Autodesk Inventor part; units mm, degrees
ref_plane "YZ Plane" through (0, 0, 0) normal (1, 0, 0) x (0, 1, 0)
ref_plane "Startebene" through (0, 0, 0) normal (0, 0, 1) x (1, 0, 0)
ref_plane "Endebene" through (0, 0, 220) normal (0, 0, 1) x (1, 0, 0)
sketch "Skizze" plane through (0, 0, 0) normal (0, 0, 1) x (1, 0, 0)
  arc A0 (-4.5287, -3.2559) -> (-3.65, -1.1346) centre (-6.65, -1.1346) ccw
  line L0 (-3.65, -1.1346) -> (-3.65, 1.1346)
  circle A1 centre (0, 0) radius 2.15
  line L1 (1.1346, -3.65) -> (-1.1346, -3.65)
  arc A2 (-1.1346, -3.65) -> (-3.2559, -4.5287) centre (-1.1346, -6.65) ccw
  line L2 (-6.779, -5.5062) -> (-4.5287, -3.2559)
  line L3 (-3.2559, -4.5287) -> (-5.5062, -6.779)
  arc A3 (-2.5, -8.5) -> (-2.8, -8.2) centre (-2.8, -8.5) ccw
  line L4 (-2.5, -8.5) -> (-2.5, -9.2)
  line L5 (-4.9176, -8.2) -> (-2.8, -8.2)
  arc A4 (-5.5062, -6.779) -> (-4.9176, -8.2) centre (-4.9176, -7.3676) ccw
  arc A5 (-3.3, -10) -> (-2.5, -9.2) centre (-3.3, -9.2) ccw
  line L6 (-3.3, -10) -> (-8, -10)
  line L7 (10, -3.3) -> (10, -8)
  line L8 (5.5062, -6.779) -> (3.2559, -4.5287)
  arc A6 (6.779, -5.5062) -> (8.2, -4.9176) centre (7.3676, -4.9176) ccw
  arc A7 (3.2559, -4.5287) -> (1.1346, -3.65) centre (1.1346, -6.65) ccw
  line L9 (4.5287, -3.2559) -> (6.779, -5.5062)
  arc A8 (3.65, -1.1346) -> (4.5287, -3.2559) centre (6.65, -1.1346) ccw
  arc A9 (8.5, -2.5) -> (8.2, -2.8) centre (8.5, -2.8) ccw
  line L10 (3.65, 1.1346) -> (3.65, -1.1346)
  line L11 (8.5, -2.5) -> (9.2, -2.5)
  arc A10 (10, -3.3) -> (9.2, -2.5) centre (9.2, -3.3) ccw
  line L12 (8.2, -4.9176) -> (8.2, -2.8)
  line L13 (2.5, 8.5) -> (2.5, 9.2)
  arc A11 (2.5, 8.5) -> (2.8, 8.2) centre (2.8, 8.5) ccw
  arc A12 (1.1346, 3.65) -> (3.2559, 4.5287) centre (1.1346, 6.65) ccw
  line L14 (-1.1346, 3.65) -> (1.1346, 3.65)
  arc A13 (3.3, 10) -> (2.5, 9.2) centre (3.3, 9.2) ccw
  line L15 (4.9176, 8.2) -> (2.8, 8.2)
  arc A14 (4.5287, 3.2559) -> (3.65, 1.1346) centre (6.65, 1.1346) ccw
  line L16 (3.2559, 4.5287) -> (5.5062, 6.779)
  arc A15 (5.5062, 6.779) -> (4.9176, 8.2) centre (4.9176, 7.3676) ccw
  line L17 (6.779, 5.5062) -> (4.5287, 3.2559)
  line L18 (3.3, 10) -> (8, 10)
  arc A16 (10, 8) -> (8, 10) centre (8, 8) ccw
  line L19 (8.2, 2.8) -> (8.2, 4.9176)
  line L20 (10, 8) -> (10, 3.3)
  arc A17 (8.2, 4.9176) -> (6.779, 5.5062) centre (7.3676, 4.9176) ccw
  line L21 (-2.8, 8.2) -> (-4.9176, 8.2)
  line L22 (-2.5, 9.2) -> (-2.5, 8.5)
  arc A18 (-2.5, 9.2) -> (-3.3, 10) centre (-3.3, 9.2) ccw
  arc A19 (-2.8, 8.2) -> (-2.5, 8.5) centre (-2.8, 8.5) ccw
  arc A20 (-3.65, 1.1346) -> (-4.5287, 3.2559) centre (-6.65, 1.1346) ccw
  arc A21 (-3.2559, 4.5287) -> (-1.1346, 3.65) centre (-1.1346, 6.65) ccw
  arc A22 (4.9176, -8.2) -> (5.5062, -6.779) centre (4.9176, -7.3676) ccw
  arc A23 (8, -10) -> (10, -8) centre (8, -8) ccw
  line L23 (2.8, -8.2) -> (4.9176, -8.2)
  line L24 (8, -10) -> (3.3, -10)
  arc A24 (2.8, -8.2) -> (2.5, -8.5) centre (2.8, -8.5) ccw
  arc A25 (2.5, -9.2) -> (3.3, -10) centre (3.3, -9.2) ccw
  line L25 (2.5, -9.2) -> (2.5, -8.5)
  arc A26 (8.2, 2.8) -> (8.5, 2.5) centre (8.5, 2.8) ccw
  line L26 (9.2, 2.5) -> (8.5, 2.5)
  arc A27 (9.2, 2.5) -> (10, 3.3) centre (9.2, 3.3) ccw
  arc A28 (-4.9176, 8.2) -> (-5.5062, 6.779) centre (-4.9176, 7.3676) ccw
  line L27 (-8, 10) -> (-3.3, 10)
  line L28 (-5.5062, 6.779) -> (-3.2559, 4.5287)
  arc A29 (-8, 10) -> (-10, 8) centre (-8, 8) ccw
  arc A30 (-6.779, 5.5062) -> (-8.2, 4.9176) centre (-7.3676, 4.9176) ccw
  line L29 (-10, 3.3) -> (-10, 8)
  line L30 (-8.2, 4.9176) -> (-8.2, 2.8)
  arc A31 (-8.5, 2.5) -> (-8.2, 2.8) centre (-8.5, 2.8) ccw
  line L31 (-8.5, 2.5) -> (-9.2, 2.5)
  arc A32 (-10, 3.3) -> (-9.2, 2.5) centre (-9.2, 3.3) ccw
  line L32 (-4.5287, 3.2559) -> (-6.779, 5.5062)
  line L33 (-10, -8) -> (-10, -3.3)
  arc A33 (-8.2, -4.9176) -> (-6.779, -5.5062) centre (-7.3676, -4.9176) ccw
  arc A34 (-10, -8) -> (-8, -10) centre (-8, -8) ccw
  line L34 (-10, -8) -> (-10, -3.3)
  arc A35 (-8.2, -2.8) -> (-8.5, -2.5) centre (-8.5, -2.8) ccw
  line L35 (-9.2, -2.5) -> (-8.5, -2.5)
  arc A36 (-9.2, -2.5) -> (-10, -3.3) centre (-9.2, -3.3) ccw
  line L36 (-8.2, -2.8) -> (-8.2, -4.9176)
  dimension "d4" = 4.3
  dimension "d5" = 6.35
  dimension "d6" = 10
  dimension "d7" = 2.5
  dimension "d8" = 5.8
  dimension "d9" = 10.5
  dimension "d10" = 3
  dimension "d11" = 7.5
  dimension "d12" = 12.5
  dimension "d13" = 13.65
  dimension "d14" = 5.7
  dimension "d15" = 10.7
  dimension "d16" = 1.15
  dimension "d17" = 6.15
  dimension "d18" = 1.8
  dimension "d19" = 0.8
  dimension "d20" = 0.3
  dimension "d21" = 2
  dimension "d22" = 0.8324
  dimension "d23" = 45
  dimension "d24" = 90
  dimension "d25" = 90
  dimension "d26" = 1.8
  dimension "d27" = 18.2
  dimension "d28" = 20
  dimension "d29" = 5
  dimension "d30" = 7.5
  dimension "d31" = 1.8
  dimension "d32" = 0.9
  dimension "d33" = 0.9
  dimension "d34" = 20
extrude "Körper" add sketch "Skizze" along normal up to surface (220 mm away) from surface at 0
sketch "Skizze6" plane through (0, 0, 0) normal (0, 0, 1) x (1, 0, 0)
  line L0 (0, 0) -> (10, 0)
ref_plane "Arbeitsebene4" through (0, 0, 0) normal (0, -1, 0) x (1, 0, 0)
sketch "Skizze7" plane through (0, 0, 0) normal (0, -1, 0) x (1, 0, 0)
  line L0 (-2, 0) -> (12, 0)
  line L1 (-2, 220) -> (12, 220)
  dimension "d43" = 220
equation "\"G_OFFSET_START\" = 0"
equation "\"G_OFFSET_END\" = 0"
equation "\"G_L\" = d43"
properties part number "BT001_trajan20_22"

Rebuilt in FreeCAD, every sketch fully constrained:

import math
import FreeCAD as App
import Part
import Sketcher

V = App.Vector
Q = App.Units.Quantity

doc = App.newDocument("Part")
body = doc.addObject("PartDesign::Body", "Body")

# Sketch on XY plane
sketch1 = body.newObject("Sketcher::SketchObject", "Sketch")
sketch1.AttachmentSupport = (doc.getObject("XY_Plane"), [""])
sketch1.MapMode = "FlatFace"
sketch1.addGeometry([
    Part.ArcOfCircle(Part.Circle(V(-6.65, -1.13, 0), V(0, 0, 1), 3), math.radians(-45), math.radians(0)),  # 0
    Part.LineSegment(V(-4.53, -3.26, 0), V(-6.78, -5.51, 0)),  # 1
    Part.ArcOfCircle(Part.Circle(V(-7.37, -4.92, 0), V(0, 0, 1), 0.83), math.radians(180), math.radians(315)),  # 2
    Part.LineSegment(V(-8.2, -4.92, 0), V(-8.2, -2.8, 0)),  # 3
    Part.ArcOfCircle(Part.Circle(V(-8.5, -2.8, 0), V(0, 0, 1), 0.3), math.radians(0), math.radians(90)),  # 4
    Part.LineSegment(V(-8.5, -2.5, 0), V(-9.2, -2.5, 0)),  # 5
    Part.ArcOfCircle(Part.Circle(V(-9.2, -3.3, 0), V(0, 0, 1), 0.8), math.radians(90), math.radians(180)),  # 6
    Part.LineSegment(V(-10, -3.3, 0), V(-10, -8, 0)),  # 7
    Part.ArcOfCircle(Part.Circle(V(-8, -8, 0), V(0, 0, 1), 2), math.radians(180), math.radians(270)),  # 8
    Part.LineSegment(V(-8, -10, 0), V(-3.3, -10, 0)),  # 9
    Part.ArcOfCircle(Part.Circle(V(-3.3, -9.2, 0), V(0, 0, 1), 0.8), math.radians(-90), math.radians(0)),  # 10
    Part.LineSegment(V(-2.5, -9.2, 0), V(-2.5, -8.5, 0)),  # 11
    Part.ArcOfCircle(Part.Circle(V(-2.8, -8.5, 0), V(0, 0, 1), 0.3), math.radians(0), math.radians(90)),  # 12
    Part.LineSegment(V(-2.8, -8.2, 0), V(-4.92, -8.2, 0)),  # 13
    Part.ArcOfCircle(Part.Circle(V(-4.92, -7.37, 0), V(0, 0, 1), 0.83), math.radians(135), math.radians(270)),  # 14
    Part.LineSegment(V(-5.51, -6.78, 0), V(-3.26, -4.53, 0)),  # 15
    Part.ArcOfCircle(Part.Circle(V(-1.13, -6.65, 0), V(0, 0, 1), 3), math.radians(90), math.radians(135)),  # 16
    Part.LineSegment(V(-1.13, -3.65, 0), V(1.13, -3.65, 0)),  # 17
    Part.ArcOfCircle(Part.Circle(V(1.13, -6.65, 0), V(0, 0, 1), 3), math.radians(45), math.radians(90)),  # 18
    Part.LineSegment(V(3.26, -4.53, 0), V(5.51, -6.78, 0)),  # 19
    Part.ArcOfCircle(Part.Circle(V(4.92, -7.37, 0), V(0, 0, 1), 0.83), math.radians(-90), math.radians(45)),  # 20
    Part.LineSegment(V(4.92, -8.2, 0), V(2.8, -8.2, 0)),  # 21
    Part.ArcOfCircle(Part.Circle(V(2.8, -8.5, 0), V(0, 0, 1), 0.3), math.radians(90), math.radians(180)),  # 22
    Part.LineSegment(V(2.5, -8.5, 0), V(2.5, -9.2, 0)),  # 23
    Part.ArcOfCircle(Part.Circle(V(3.3, -9.2, 0), V(0, 0, 1), 0.8), math.radians(180), math.radians(270)),  # 24
    Part.LineSegment(V(3.3, -10, 0), V(8, -10, 0)),  # 25
    Part.ArcOfCircle(Part.Circle(V(8, -8, 0), V(0, 0, 1), 2), math.radians(-90), math.radians(0)),  # 26
    Part.LineSegment(V(10, -8, 0), V(10, -3.3, 0)),  # 27
    Part.ArcOfCircle(Part.Circle(V(9.2, -3.3, 0), V(0, 0, 1), 0.8), math.radians(0), math.radians(90)),  # 28
    Part.LineSegment(V(9.2, -2.5, 0), V(8.5, -2.5, 0)),  # 29
    Part.ArcOfCircle(Part.Circle(V(8.5, -2.8, 0), V(0, 0, 1), 0.3), math.radians(90), math.radians(180)),  # 30
    Part.LineSegment(V(8.2, -2.8, 0), V(8.2, -4.92, 0)),  # 31
    Part.ArcOfCircle(Part.Circle(V(7.37, -4.92, 0), V(0, 0, 1), 0.83), math.radians(-135), math.radians(0)),  # 32
    Part.LineSegment(V(6.78, -5.51, 0), V(4.53, -3.26, 0)),  # 33
    Part.ArcOfCircle(Part.Circle(V(6.65, -1.13, 0), V(0, 0, 1), 3), math.radians(180), math.radians(225)),  # 34
    Part.LineSegment(V(3.65, -1.13, 0), V(3.65, 1.13, 0)),  # 35
    Part.ArcOfCircle(Part.Circle(V(6.65, 1.13, 0), V(0, 0, 1), 3), math.radians(135), math.radians(180)),  # 36
    Part.LineSegment(V(4.53, 3.26, 0), V(6.78, 5.51, 0)),  # 37
    Part.ArcOfCircle(Part.Circle(V(7.37, 4.92, 0), V(0, 0, 1), 0.83), math.radians(0), math.radians(135)),  # 38
    Part.LineSegment(V(8.2, 4.92, 0), V(8.2, 2.8, 0)),  # 39
    Part.ArcOfCircle(Part.Circle(V(8.5, 2.8, 0), V(0, 0, 1), 0.3), math.radians(180), math.radians(270)),  # 40
    Part.LineSegment(V(8.5, 2.5, 0), V(9.2, 2.5, 0)),  # 41
    Part.ArcOfCircle(Part.Circle(V(9.2, 3.3, 0), V(0, 0, 1), 0.8), math.radians(-90), math.radians(0)),  # 42
    Part.LineSegment(V(10, 3.3, 0), V(10, 8, 0)),  # 43
    Part.ArcOfCircle(Part.Circle(V(8, 8, 0), V(0, 0, 1), 2), math.radians(0), math.radians(90)),  # 44
    Part.LineSegment(V(8, 10, 0), V(3.3, 10, 0)),  # 45
    Part.ArcOfCircle(Part.Circle(V(3.3, 9.2, 0), V(0, 0, 1), 0.8), math.radians(90), math.radians(180)),  # 46
    Part.LineSegment(V(2.5, 9.2, 0), V(2.5, 8.5, 0)),  # 47
    Part.ArcOfCircle(Part.Circle(V(2.8, 8.5, 0), V(0, 0, 1), 0.3), math.radians(180), math.radians(270)),  # 48
    Part.LineSegment(V(2.8, 8.2, 0), V(4.92, 8.2, 0)),  # 49
    Part.ArcOfCircle(Part.Circle(V(4.92, 7.37, 0), V(0, 0, 1), 0.83), math.radians(-45), math.radians(90)),  # 50
    Part.LineSegment(V(5.51, 6.78, 0), V(3.26, 4.53, 0)),  # 51
    Part.ArcOfCircle(Part.Circle(V(1.13, 6.65, 0), V(0, 0, 1), 3), math.radians(-90), math.radians(-45)),  # 52
    Part.LineSegment(V(1.13, 3.65, 0), V(-1.13, 3.65, 0)),  # 53
    Part.ArcOfCircle(Part.Circle(V(-1.13, 6.65, 0), V(0, 0, 1), 3), math.radians(-135), math.radians(-90)),  # 54
    Part.LineSegment(V(-3.26, 4.53, 0), V(-5.51, 6.78, 0)),  # 55
    Part.ArcOfCircle(Part.Circle(V(-4.92, 7.37, 0), V(0, 0, 1), 0.83), math.radians(90), math.radians(225)),  # 56
    Part.LineSegment(V(-4.92, 8.2, 0), V(-2.8, 8.2, 0)),  # 57
    Part.ArcOfCircle(Part.Circle(V(-2.8, 8.5, 0), V(0, 0, 1), 0.3), math.radians(-90), math.radians(0)),  # 58
    Part.LineSegment(V(-2.5, 8.5, 0), V(-2.5, 9.2, 0)),  # 59
    Part.ArcOfCircle(Part.Circle(V(-3.3, 9.2, 0), V(0, 0, 1), 0.8), math.radians(0), math.radians(90)),  # 60
    Part.LineSegment(V(-3.3, 10, 0), V(-8, 10, 0)),  # 61
    Part.ArcOfCircle(Part.Circle(V(-8, 8, 0), V(0, 0, 1), 2), math.radians(90), math.radians(180)),  # 62
    Part.LineSegment(V(-10, 8, 0), V(-10, 3.3, 0)),  # 63
    Part.ArcOfCircle(Part.Circle(V(-9.2, 3.3, 0), V(0, 0, 1), 0.8), math.radians(180), math.radians(270)),  # 64
    Part.LineSegment(V(-9.2, 2.5, 0), V(-8.5, 2.5, 0)),  # 65
    Part.ArcOfCircle(Part.Circle(V(-8.5, 2.8, 0), V(0, 0, 1), 0.3), math.radians(-90), math.radians(0)),  # 66
    Part.LineSegment(V(-8.2, 2.8, 0), V(-8.2, 4.92, 0)),  # 67
    Part.ArcOfCircle(Part.Circle(V(-7.37, 4.92, 0), V(0, 0, 1), 0.83), math.radians(45), math.radians(180)),  # 68
    Part.LineSegment(V(-6.78, 5.51, 0), V(-4.53, 3.26, 0)),  # 69
    Part.ArcOfCircle(Part.Circle(V(-6.65, 1.13, 0), V(0, 0, 1), 3), math.radians(0), math.radians(45)),  # 70
    Part.LineSegment(V(-3.65, 1.13, 0), V(-3.65, -1.13, 0)),  # 71
    Part.Circle(V(0, 0, 0), V(0, 0, 1), 2.15),  # 72
], False)
sketch1.addConstraint([
    Sketcher.Constraint("Tangent", 0, 1, 1, 1),
    Sketcher.Constraint("Tangent", 1, 2, 2, 2),
    Sketcher.Constraint("Tangent", 2, 1, 3, 1),
    Sketcher.Constraint("Tangent", 3, 2, 4, 1),
    Sketcher.Constraint("Tangent", 4, 2, 5, 1),
    Sketcher.Constraint("Tangent", 5, 2, 6, 1),
    Sketcher.Constraint("Tangent", 6, 2, 7, 1),
    Sketcher.Constraint("Tangent", 7, 2, 8, 1),
    Sketcher.Constraint("Tangent", 8, 2, 9, 1),
    Sketcher.Constraint("Tangent", 9, 2, 10, 1),
    Sketcher.Constraint("Tangent", 10, 2, 11, 1),
    Sketcher.Constraint("Tangent", 11, 2, 12, 1),
    Sketcher.Constraint("Tangent", 12, 2, 13, 1),
    Sketcher.Constraint("Tangent", 13, 2, 14, 2),
    Sketcher.Constraint("Tangent", 14, 1, 15, 1),
    Sketcher.Constraint("Tangent", 15, 2, 16, 2),
    Sketcher.Constraint("Tangent", 16, 1, 17, 1),
    Sketcher.Constraint("Tangent", 17, 2, 18, 2),
    Sketcher.Constraint("Tangent", 18, 1, 19, 1),
    Sketcher.Constraint("Tangent", 19, 2, 20, 2),
    Sketcher.Constraint("Tangent", 20, 1, 21, 1),
    Sketcher.Constraint("Tangent", 21, 2, 22, 1),
    Sketcher.Constraint("Tangent", 22, 2, 23, 1),
    Sketcher.Constraint("Tangent", 23, 2, 24, 1),
    Sketcher.Constraint("Tangent", 24, 2, 25, 1),
    Sketcher.Constraint("Tangent", 25, 2, 26, 1),
    Sketcher.Constraint("Tangent", 26, 2, 27, 1),
    Sketcher.Constraint("Tangent", 27, 2, 28, 1),
    Sketcher.Constraint("Tangent", 28, 2, 29, 1),
    Sketcher.Constraint("Tangent", 29, 2, 30, 1),
    Sketcher.Constraint("Tangent", 30, 2, 31, 1),
    Sketcher.Constraint("Tangent", 31, 2, 32, 2),
    Sketcher.Constraint("Tangent", 32, 1, 33, 1),
    Sketcher.Constraint("Tangent", 33, 2, 34, 2),
    Sketcher.Constraint("Tangent", 34, 1, 35, 1),
    Sketcher.Constraint("Tangent", 35, 2, 36, 2),
    Sketcher.Constraint("Tangent", 36, 1, 37, 1),
    Sketcher.Constraint("Tangent", 37, 2, 38, 2),
    Sketcher.Constraint("Tangent", 38, 1, 39, 1),
    Sketcher.Constraint("Tangent", 39, 2, 40, 1),
    Sketcher.Constraint("Tangent", 40, 2, 41, 1),
    Sketcher.Constraint("Tangent", 41, 2, 42, 1),
    Sketcher.Constraint("Tangent", 42, 2, 43, 1),
    Sketcher.Constraint("Tangent", 43, 2, 44, 1),
    Sketcher.Constraint("Tangent", 44, 2, 45, 1),
    Sketcher.Constraint("Tangent", 45, 2, 46, 1),
    Sketcher.Constraint("Tangent", 46, 2, 47, 1),
    Sketcher.Constraint("Tangent", 47, 2, 48, 1),
    Sketcher.Constraint("Tangent", 48, 2, 49, 1),
    Sketcher.Constraint("Tangent", 49, 2, 50, 2),
    Sketcher.Constraint("Tangent", 50, 1, 51, 1),
    Sketcher.Constraint("Tangent", 51, 2, 52, 2),
    Sketcher.Constraint("Tangent", 52, 1, 53, 1),
    Sketcher.Constraint("Tangent", 53, 2, 54, 2),
    Sketcher.Constraint("Tangent", 54, 1, 55, 1),
    Sketcher.Constraint("Tangent", 55, 2, 56, 2),
    Sketcher.Constraint("Tangent", 56, 1, 57, 1),
    Sketcher.Constraint("Tangent", 57, 2, 58, 1),
    Sketcher.Constraint("Tangent", 58, 2, 59, 1),
    Sketcher.Constraint("Tangent", 59, 2, 60, 1),
    Sketcher.Constraint("Tangent", 60, 2, 61, 1),
    Sketcher.Constraint("Tangent", 61, 2, 62, 1),
    Sketcher.Constraint("Tangent", 62, 2, 63, 1),
    Sketcher.Constraint("Tangent", 63, 2, 64, 1),
    Sketcher.Constraint("Tangent", 64, 2, 65, 1),
    Sketcher.Constraint("Tangent", 65, 2, 66, 1),
    Sketcher.Constraint("Tangent", 66, 2, 67, 1),
    Sketcher.Constraint("Tangent", 67, 2, 68, 2),
    Sketcher.Constraint("Tangent", 68, 1, 69, 1),
    Sketcher.Constraint("Tangent", 69, 2, 70, 2),
    Sketcher.Constraint("Tangent", 70, 1, 71, 1),
    Sketcher.Constraint("Tangent", 71, 2, 0, 2),
    Sketcher.Constraint("Vertical", 3),
    Sketcher.Constraint("Horizontal", 5),
    Sketcher.Constraint("Vertical", 7),
    Sketcher.Constraint("Horizontal", 9),
    Sketcher.Constraint("Vertical", 11),
    Sketcher.Constraint("Horizontal", 13),
    Sketcher.Constraint("Horizontal", 17),
    Sketcher.Constraint("Horizontal", 21),
    Sketcher.Constraint("Vertical", 23),
    Sketcher.Constraint("Horizontal", 25),
    Sketcher.Constraint("Vertical", 27),
    Sketcher.Constraint("Horizontal", 29),
    Sketcher.Constraint("Vertical", 31),
    Sketcher.Constraint("Vertical", 35),
    Sketcher.Constraint("Vertical", 39),
    Sketcher.Constraint("Horizontal", 41),
    Sketcher.Constraint("Vertical", 43),
    Sketcher.Constraint("Horizontal", 45),
    Sketcher.Constraint("Vertical", 47),
    Sketcher.Constraint("Horizontal", 49),
    Sketcher.Constraint("Horizontal", 53),
    Sketcher.Constraint("Horizontal", 57),
    Sketcher.Constraint("Vertical", 59),
    Sketcher.Constraint("Horizontal", 61),
    Sketcher.Constraint("Vertical", 63),
    Sketcher.Constraint("Horizontal", 65),
    Sketcher.Constraint("Vertical", 67),
    Sketcher.Constraint("Vertical", 71),
    Sketcher.Constraint("Coincident", 72, 3, -1, 1),
    Sketcher.Constraint("Equal", 6, 10),
    Sketcher.Constraint("Equal", 4, 12),
    Sketcher.Constraint("Equal", 2, 14),
    Sketcher.Constraint("Equal", 0, 16),
    Sketcher.Constraint("Equal", 16, 18),
    Sketcher.Constraint("Equal", 14, 20),
    Sketcher.Constraint("Equal", 12, 22),
    Sketcher.Constraint("Equal", 10, 24),
    Sketcher.Constraint("Equal", 8, 26),
    Sketcher.Constraint("Equal", 24, 28),
    Sketcher.Constraint("Equal", 22, 30),
    Sketcher.Constraint("Equal", 20, 32),
    Sketcher.Constraint("Equal", 18, 34),
    Sketcher.Constraint("Equal", 34, 36),
    Sketcher.Constraint("Equal", 32, 38),
    Sketcher.Constraint("Equal", 30, 40),
    Sketcher.Constraint("Equal", 28, 42),
    Sketcher.Constraint("Equal", 26, 44),
    Sketcher.Constraint("Equal", 42, 46),
    Sketcher.Constraint("Equal", 40, 48),
    Sketcher.Constraint("Equal", 38, 50),
    Sketcher.Constraint("Equal", 36, 52),
    Sketcher.Constraint("Equal", 52, 54),
    Sketcher.Constraint("Equal", 50, 56),
    Sketcher.Constraint("Equal", 48, 58),
    Sketcher.Constraint("Equal", 46, 60),
    Sketcher.Constraint("Equal", 44, 62),
    Sketcher.Constraint("Equal", 60, 64),
    Sketcher.Constraint("Equal", 58, 66),
    Sketcher.Constraint("Equal", 56, 68),
    Sketcher.Constraint("Equal", 54, 70),
    Sketcher.Constraint("Symmetric", 0, 3, 36, 3, -1, 1),
    Sketcher.Constraint("Symmetric", 2, 3, 38, 3, -1, 1),
    Sketcher.Constraint("Symmetric", 6, 3, 42, 3, -1, 1),
    Sketcher.Constraint("Symmetric", 10, 3, 46, 3, -1, 1),
    Sketcher.Constraint("Symmetric", 14, 3, 50, 3, -1, 1),
    Sketcher.Constraint("Symmetric", 16, 3, 52, 3, -1, 1),
    Sketcher.Constraint("Symmetric", 20, 3, 56, 3, -1, 1),
    Sketcher.Constraint("Symmetric", 24, 3, 60, 3, -1, 1),
    Sketcher.Constraint("Symmetric", 28, 3, 64, 3, -1, 1),
    Sketcher.Constraint("Symmetric", 32, 3, 68, 3, -1, 1),
    Sketcher.Constraint("Symmetric", 14, 3, 20, 3, -2),
    Sketcher.Constraint("Symmetric", 10, 3, 24, 3, -2),
    Sketcher.Constraint("Symmetric", 6, 3, 28, 3, -2),
    Sketcher.Constraint("Symmetric", 2, 3, 32, 3, -2),
    Sketcher.Constraint("Parallel", 1, 15),
    Sketcher.Constraint("Perpendicular", 15, 19),
    Sketcher.Constraint("Parallel", 19, 33),
    Sketcher.Constraint("Perpendicular", 51, 55),
    Sketcher.Constraint("Parallel", 55, 69),
    Sketcher.Constraint("Horizontal", 0, 3, 34, 3),
    Sketcher.Constraint("Equal", 57, 3),
    Sketcher.Constraint("Equal", 61, 7),
    Sketcher.Constraint("Equal", 65, 11),
    Sketcher.Constraint("Equal", 53, 35),
    Sketcher.Constraint("Equal", 1, 15),
    Sketcher.Constraint("Radius", 0, Q("3 mm")),
    Sketcher.Constraint("Radius", 8, Q("2 mm")),
    Sketcher.Constraint("Diameter", 72, Q("4.3 mm")),
    Sketcher.Constraint("Radius", 4, Q("0.3 mm")),
    Sketcher.Constraint("Radius", 6, Q("0.8 mm")),
    Sketcher.Constraint("DistanceX", 6, 2, -1, 1, Q("10 mm")),
    Sketcher.Constraint("DistanceY", 4, 2, -1, 1, Q("2.5 mm")),
    Sketcher.Constraint("Radius", 2, Q("0.8324 mm")),
    Sketcher.Constraint("DistanceX", 5, 2, 5, 1, Q("0.7 mm")),
    Sketcher.Constraint("DistanceX", 0, 3, -1, 1, Q("6.65 mm")),
    Sketcher.Constraint("DistanceX", 13, 2, 13, 1, Q("2.1176 mm")),
])
pad1 = body.newObject("PartDesign::Pad", "Pad")
pad1.Profile = sketch1
pad1.Length = 220

doc.recompute()
